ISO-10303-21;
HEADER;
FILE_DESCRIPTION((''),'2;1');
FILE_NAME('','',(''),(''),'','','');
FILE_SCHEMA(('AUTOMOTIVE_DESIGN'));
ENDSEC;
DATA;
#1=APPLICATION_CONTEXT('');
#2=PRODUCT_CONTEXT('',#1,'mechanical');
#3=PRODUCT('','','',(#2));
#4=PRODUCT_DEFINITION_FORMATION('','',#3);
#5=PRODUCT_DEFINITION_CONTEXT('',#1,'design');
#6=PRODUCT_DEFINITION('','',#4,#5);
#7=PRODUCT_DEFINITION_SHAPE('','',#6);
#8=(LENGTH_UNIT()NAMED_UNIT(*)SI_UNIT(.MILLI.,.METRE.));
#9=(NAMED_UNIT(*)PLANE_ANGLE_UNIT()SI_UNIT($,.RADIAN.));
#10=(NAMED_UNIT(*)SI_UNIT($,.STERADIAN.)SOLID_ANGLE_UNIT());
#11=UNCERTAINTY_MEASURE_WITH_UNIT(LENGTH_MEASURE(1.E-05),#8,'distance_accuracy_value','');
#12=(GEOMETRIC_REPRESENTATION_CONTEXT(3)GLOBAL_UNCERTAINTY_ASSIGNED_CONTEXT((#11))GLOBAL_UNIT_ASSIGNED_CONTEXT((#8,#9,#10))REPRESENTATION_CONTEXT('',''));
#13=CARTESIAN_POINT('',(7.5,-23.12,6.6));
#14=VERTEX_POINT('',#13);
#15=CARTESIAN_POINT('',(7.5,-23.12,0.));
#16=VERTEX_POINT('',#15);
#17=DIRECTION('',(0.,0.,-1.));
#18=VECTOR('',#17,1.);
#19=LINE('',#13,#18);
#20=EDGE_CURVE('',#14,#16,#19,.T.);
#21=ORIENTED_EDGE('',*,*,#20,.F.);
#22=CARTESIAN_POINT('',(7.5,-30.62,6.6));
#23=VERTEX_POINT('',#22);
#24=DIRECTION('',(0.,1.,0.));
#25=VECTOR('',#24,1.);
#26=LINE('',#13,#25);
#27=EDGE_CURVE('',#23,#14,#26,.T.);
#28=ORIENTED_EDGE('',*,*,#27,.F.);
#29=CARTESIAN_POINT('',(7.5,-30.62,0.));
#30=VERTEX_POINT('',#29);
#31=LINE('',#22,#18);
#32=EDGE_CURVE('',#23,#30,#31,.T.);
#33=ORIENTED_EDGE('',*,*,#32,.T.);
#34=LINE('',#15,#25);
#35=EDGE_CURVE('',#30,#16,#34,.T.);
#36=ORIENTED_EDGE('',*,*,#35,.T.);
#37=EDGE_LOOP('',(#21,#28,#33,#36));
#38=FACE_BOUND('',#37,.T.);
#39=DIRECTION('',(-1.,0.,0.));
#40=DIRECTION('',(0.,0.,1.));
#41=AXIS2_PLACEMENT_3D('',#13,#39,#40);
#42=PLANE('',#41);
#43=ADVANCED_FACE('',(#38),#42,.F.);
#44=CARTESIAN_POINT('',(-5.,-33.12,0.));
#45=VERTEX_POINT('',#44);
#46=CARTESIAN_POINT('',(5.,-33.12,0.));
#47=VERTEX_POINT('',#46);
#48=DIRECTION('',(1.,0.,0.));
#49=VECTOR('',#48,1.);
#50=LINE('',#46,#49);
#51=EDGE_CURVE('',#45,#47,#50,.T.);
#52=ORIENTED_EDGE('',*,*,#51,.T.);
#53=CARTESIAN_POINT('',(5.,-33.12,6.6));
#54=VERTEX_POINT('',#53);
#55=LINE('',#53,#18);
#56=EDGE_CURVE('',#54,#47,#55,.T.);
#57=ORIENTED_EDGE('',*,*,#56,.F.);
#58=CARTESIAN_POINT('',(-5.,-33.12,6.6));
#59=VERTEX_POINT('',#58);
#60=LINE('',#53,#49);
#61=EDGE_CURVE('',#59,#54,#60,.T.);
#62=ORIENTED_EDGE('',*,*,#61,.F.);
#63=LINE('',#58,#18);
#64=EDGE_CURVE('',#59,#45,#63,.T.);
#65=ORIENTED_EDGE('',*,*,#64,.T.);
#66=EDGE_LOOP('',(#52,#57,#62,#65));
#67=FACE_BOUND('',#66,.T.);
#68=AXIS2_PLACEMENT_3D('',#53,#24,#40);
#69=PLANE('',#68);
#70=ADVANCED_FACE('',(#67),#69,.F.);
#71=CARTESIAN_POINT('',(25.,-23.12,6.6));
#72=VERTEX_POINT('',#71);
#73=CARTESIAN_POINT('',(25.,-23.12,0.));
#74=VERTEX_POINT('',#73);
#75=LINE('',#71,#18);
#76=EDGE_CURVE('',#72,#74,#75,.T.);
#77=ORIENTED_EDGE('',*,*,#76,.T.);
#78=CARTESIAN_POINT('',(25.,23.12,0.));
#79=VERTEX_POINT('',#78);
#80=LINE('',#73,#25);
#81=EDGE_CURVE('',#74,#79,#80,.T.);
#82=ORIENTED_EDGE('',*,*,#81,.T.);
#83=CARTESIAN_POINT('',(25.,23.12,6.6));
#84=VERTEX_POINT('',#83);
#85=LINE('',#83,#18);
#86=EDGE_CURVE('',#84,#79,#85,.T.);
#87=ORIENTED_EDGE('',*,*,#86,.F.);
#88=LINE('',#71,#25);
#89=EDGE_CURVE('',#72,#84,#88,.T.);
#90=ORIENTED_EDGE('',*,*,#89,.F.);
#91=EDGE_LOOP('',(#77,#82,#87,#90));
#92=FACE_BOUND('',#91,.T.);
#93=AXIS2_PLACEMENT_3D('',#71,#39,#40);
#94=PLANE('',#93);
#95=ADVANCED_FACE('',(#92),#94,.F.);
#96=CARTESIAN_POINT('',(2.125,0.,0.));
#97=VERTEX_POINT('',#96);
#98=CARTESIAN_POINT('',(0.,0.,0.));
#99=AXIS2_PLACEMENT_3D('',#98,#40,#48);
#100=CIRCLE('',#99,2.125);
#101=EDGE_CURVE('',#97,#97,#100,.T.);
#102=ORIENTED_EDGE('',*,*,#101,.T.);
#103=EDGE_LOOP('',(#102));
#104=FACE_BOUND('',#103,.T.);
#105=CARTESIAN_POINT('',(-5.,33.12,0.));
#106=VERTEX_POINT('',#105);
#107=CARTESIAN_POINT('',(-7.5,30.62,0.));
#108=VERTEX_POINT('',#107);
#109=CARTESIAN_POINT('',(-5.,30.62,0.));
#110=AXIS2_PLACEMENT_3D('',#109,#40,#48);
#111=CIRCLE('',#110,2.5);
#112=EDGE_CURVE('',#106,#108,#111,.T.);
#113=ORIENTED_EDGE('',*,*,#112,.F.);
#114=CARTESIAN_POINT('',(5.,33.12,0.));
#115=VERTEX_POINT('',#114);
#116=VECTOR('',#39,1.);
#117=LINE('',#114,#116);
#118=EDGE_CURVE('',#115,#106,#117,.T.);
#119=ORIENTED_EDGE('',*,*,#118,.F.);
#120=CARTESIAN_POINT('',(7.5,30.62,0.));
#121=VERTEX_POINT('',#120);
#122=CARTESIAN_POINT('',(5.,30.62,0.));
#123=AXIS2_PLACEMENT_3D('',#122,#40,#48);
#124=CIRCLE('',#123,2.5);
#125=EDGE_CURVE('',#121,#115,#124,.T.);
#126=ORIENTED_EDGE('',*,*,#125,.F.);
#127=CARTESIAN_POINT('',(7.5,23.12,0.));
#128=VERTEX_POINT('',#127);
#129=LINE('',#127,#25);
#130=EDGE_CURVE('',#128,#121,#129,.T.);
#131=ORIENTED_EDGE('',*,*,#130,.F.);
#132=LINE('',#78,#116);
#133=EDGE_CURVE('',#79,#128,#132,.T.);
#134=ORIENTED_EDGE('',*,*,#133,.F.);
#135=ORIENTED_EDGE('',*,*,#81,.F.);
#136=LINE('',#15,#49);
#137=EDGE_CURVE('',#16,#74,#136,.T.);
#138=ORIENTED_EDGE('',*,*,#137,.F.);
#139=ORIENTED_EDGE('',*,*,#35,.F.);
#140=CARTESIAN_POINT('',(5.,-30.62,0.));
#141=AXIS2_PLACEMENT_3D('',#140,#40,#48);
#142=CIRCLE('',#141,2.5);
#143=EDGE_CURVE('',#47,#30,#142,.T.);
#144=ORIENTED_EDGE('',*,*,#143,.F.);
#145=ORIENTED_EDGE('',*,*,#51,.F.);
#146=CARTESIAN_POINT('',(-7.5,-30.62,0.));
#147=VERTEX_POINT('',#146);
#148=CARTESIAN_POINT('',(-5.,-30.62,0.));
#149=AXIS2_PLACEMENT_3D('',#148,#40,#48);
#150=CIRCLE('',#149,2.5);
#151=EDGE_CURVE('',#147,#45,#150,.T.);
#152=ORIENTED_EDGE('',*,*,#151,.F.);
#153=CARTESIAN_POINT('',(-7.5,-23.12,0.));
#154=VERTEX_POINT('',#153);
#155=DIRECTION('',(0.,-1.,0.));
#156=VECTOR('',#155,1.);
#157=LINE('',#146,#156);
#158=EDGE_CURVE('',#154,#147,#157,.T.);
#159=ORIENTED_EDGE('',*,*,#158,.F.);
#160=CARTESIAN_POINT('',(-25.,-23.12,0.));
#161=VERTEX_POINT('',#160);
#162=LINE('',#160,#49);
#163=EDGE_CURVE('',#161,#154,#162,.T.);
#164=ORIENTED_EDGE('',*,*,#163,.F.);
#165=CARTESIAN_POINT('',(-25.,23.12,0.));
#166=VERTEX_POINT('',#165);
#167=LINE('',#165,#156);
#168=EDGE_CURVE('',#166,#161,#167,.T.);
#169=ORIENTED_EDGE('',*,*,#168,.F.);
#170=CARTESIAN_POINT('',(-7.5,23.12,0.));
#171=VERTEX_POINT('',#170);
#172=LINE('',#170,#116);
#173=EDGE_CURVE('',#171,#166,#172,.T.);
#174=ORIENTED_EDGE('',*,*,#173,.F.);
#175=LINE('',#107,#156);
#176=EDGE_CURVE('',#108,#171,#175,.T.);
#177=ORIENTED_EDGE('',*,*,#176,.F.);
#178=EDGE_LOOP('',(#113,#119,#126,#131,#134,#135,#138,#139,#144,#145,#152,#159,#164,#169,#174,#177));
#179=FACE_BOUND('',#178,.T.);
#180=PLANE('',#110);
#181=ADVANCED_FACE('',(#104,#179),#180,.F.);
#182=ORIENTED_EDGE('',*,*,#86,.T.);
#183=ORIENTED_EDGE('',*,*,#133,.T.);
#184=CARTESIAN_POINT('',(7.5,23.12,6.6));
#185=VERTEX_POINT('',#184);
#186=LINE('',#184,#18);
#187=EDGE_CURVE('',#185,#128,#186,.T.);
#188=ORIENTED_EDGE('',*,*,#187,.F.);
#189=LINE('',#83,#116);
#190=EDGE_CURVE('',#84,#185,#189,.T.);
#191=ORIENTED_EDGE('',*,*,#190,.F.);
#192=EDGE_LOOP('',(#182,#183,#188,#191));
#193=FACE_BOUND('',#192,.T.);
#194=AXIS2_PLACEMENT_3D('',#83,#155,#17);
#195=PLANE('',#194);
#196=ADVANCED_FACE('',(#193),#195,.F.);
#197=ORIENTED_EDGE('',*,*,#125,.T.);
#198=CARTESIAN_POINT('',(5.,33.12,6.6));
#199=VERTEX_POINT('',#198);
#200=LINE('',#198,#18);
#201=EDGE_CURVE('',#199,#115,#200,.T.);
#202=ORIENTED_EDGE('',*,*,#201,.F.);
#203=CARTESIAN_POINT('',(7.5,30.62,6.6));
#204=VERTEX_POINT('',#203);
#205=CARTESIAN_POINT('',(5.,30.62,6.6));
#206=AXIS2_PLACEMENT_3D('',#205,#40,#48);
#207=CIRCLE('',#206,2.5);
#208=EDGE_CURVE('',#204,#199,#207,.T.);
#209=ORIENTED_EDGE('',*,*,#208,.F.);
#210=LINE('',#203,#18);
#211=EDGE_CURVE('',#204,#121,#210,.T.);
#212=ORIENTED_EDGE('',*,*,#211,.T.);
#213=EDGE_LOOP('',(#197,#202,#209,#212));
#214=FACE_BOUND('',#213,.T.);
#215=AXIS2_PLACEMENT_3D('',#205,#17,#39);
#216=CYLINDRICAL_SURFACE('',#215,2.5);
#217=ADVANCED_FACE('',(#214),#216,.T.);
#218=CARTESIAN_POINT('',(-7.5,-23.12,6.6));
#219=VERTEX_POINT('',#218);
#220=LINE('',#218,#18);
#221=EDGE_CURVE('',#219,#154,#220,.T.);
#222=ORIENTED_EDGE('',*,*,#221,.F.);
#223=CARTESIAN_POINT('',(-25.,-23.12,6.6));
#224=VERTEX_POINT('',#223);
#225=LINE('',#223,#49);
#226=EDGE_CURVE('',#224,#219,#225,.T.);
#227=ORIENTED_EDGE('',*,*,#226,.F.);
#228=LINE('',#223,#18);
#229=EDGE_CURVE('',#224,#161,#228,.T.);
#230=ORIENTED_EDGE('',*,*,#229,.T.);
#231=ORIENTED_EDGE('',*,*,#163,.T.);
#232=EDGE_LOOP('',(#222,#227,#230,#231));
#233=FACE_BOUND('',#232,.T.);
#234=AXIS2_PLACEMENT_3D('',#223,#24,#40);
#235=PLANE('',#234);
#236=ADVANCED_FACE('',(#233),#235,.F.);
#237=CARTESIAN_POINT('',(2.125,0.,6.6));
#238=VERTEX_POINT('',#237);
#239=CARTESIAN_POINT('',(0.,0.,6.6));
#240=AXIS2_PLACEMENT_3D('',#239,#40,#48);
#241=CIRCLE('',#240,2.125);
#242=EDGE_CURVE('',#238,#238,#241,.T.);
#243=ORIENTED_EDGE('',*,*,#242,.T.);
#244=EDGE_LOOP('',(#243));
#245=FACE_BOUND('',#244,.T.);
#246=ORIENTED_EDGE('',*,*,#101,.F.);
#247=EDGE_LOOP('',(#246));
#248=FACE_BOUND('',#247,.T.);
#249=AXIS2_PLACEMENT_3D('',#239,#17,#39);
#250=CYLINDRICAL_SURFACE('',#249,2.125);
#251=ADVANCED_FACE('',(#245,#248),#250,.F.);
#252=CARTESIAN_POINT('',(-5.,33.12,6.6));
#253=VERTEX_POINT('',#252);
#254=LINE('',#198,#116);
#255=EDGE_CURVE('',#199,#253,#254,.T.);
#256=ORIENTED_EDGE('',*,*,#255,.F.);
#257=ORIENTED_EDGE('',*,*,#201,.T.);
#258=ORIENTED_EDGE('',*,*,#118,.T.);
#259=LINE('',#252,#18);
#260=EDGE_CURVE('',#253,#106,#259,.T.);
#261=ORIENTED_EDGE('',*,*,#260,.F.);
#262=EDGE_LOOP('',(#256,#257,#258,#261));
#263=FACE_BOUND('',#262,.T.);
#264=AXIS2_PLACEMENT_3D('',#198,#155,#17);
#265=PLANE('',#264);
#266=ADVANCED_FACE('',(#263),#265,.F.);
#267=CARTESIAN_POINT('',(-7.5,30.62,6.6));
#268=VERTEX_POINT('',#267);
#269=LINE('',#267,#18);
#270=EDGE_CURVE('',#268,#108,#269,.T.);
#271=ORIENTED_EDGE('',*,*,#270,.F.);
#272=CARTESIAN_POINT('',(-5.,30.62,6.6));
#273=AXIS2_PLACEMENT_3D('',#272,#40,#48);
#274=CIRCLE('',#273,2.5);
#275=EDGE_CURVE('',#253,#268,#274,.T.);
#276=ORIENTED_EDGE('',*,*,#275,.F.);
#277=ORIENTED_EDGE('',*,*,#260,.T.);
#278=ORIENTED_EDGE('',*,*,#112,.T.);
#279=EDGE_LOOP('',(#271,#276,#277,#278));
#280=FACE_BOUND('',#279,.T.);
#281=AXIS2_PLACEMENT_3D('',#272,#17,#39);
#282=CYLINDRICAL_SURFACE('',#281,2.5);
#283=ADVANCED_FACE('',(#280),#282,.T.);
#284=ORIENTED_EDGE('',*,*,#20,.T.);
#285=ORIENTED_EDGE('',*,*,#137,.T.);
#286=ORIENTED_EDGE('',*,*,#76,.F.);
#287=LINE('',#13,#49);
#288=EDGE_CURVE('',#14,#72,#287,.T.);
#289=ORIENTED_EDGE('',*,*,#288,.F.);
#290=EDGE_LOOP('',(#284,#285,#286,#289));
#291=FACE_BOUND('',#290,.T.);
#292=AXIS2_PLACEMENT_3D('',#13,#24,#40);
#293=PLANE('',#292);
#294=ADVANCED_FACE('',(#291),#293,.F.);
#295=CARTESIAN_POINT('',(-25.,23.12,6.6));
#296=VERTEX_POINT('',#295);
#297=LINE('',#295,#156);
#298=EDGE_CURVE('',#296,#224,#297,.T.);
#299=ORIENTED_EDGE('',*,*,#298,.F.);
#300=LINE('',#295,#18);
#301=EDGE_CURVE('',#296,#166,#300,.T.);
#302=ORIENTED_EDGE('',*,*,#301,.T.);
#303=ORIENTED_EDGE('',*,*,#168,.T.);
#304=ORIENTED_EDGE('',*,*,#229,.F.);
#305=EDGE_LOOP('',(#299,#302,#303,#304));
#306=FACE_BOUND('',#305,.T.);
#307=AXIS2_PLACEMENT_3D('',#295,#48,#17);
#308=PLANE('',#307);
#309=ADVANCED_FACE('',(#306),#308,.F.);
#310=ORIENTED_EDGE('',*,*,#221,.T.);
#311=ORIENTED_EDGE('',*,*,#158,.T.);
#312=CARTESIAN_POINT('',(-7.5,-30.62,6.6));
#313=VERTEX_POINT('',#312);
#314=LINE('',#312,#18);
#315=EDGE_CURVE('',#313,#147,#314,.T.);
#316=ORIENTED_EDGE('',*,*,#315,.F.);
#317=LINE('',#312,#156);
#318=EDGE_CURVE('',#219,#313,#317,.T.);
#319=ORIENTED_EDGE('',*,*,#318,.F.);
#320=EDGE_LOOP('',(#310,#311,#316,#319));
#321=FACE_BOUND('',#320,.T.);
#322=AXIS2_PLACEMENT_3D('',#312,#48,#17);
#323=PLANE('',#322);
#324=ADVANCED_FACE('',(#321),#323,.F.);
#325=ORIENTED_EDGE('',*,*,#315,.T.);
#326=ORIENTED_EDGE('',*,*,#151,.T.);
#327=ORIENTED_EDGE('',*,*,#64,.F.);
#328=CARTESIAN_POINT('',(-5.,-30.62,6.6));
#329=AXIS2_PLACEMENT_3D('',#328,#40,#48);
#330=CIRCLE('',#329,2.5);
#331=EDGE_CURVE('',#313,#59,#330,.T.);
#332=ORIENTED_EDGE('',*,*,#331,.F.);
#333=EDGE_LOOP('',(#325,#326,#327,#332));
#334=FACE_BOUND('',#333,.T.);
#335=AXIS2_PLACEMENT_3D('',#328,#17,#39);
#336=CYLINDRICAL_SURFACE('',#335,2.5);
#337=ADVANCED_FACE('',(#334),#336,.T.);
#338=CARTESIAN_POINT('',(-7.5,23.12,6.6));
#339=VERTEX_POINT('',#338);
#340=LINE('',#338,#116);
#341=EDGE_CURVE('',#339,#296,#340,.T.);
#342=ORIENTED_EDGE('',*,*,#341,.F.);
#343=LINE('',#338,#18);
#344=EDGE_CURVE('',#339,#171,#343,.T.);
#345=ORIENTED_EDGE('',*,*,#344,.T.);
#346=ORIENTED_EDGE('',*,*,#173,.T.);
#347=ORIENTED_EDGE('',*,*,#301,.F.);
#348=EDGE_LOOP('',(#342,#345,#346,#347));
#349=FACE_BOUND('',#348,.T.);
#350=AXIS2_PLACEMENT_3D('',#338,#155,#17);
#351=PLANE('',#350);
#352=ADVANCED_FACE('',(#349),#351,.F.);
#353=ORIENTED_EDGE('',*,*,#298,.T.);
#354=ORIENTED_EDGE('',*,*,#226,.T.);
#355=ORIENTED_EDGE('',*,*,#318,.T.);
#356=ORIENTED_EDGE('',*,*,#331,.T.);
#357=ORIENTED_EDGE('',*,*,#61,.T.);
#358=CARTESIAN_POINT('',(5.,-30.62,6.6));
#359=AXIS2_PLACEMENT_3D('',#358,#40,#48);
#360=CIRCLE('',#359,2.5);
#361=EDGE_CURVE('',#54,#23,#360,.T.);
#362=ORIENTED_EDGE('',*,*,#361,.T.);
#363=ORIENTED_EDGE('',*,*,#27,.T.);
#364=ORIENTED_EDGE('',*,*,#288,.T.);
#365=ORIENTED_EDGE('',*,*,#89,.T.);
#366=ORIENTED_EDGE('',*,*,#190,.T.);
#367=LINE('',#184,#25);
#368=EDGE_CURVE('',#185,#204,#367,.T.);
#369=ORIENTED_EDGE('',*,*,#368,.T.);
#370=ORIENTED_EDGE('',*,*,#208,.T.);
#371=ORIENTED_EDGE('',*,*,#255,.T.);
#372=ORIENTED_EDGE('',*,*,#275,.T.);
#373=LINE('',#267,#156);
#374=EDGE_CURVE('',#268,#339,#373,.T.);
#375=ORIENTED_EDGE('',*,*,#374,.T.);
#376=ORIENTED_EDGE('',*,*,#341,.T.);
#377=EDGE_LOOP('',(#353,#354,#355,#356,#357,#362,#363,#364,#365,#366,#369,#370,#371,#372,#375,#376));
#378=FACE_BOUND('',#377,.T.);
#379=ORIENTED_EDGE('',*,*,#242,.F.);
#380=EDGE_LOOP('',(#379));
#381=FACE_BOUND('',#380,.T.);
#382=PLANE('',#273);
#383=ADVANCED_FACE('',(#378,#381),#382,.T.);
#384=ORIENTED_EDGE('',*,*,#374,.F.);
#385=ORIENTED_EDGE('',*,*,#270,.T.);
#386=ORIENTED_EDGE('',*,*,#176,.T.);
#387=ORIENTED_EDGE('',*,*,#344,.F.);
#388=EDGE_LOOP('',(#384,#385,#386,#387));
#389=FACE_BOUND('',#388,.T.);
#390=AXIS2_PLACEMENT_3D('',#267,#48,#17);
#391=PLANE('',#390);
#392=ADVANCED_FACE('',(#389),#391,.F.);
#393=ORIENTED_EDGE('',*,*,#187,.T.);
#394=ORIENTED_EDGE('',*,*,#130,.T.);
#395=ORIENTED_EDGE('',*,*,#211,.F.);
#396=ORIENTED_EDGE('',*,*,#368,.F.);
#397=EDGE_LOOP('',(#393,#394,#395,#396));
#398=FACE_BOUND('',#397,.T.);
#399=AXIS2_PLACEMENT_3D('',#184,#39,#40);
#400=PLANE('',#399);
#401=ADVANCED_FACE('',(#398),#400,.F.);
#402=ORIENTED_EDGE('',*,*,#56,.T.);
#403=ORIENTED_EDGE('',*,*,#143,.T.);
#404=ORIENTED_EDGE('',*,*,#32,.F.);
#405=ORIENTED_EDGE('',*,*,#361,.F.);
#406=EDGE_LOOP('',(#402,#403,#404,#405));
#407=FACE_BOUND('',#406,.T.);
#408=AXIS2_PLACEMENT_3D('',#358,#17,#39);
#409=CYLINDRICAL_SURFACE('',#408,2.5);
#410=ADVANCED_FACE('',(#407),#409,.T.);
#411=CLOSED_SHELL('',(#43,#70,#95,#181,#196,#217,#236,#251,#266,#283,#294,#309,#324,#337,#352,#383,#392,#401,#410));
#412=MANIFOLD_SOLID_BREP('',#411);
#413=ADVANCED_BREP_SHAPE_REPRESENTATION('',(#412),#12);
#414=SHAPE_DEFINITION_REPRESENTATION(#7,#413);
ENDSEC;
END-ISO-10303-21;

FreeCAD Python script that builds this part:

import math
import FreeCAD as App
import Part
import Sketcher
from FreeCAD import Vector

doc = App.newDocument("Part")
body = doc.addObject("PartDesign::Body", "Body")

sketch1 = body.newObject("Sketcher::SketchObject", "Sketch")
sketch1.AttachmentSupport = (doc.getObject("XY_Plane"), [""])
sketch1.MapMode = "FlatFace"
sketch1.addGeometry(Part.LineSegment(Vector(-25, 23.1, 0), Vector(-25, -23.1, 0)), False)
sketch1.addGeometry(Part.LineSegment(Vector(-25, -23.1, 0), Vector(-7.5, -23.1, 0)), False)
sketch1.addGeometry(Part.LineSegment(Vector(-7.5, -23.1, 0), Vector(-7.5, -30.6, 0)), False)
sketch1.addGeometry(Part.ArcOfCircle(Part.Circle(Vector(-5, -30.6, 0), Vector(0, 0, 1), 2.5), math.radians(180), math.radians(270)), False)
sketch1.addGeometry(Part.LineSegment(Vector(-5, -33.1, 0), Vector(5, -33.1, 0)), False)
sketch1.addGeometry(Part.ArcOfCircle(Part.Circle(Vector(5, -30.6, 0), Vector(0, 0, 1), 2.5), math.radians(-90), math.radians(0)), False)
sketch1.addGeometry(Part.LineSegment(Vector(7.5, -30.6, 0), Vector(7.5, -23.1, 0)), False)
sketch1.addGeometry(Part.LineSegment(Vector(7.5, -23.1, 0), Vector(25, -23.1, 0)), False)
sketch1.addGeometry(Part.LineSegment(Vector(25, -23.1, 0), Vector(25, 23.1, 0)), False)
sketch1.addGeometry(Part.LineSegment(Vector(25, 23.1, 0), Vector(7.5, 23.1, 0)), False)
sketch1.addGeometry(Part.LineSegment(Vector(7.5, 23.1, 0), Vector(7.5, 30.6, 0)), False)
sketch1.addGeometry(Part.ArcOfCircle(Part.Circle(Vector(5, 30.6, 0), Vector(0, 0, 1), 2.5), math.radians(0), math.radians(90)), False)
sketch1.addGeometry(Part.LineSegment(Vector(5, 33.1, 0), Vector(-5, 33.1, 0)), False)
sketch1.addGeometry(Part.ArcOfCircle(Part.Circle(Vector(-5, 30.6, 0), Vector(0, 0, 1), 2.5), math.radians(90), math.radians(180)), False)
sketch1.addGeometry(Part.LineSegment(Vector(-7.5, 30.6, 0), Vector(-7.5, 23.1, 0)), False)
sketch1.addGeometry(Part.LineSegment(Vector(-7.5, 23.1, 0), Vector(-25, 23.1, 0)), False)
sketch1.addGeometry(Part.Circle(Vector(0, 0, 0), Vector(0, 0, 1), 2.1), False)
sketch1.addConstraint(Sketcher.Constraint("Coincident", 0, 2, 1, 1))
sketch1.addConstraint(Sketcher.Constraint("Coincident", 1, 2, 2, 1))
sketch1.addConstraint(Sketcher.Constraint("Tangent", 2, 2, 3, 1))
sketch1.addConstraint(Sketcher.Constraint("Tangent", 3, 2, 4, 1))
sketch1.addConstraint(Sketcher.Constraint("Tangent", 4, 2, 5, 1))
sketch1.addConstraint(Sketcher.Constraint("Tangent", 5, 2, 6, 1))
sketch1.addConstraint(Sketcher.Constraint("Coincident", 6, 2, 7, 1))
sketch1.addConstraint(Sketcher.Constraint("Coincident", 7, 2, 8, 1))
sketch1.addConstraint(Sketcher.Constraint("Coincident", 8, 2, 9, 1))
sketch1.addConstraint(Sketcher.Constraint("Coincident", 9, 2, 10, 1))
sketch1.addConstraint(Sketcher.Constraint("Tangent", 10, 2, 11, 1))
sketch1.addConstraint(Sketcher.Constraint("Tangent", 11, 2, 12, 1))
sketch1.addConstraint(Sketcher.Constraint("Tangent", 12, 2, 13, 1))
sketch1.addConstraint(Sketcher.Constraint("Tangent", 13, 2, 14, 1))
sketch1.addConstraint(Sketcher.Constraint("Coincident", 14, 2, 15, 1))
sketch1.addConstraint(Sketcher.Constraint("Coincident", 15, 2, 0, 1))
sketch1.addConstraint(Sketcher.Constraint("Vertical", 0))
sketch1.addConstraint(Sketcher.Constraint("Horizontal", 1))
sketch1.addConstraint(Sketcher.Constraint("Vertical", 2))
sketch1.addConstraint(Sketcher.Constraint("Horizontal", 4))
sketch1.addConstraint(Sketcher.Constraint("Vertical", 6))
sketch1.addConstraint(Sketcher.Constraint("Horizontal", 7))
sketch1.addConstraint(Sketcher.Constraint("Vertical", 8))
sketch1.addConstraint(Sketcher.Constraint("Horizontal", 9))
sketch1.addConstraint(Sketcher.Constraint("Vertical", 10))
sketch1.addConstraint(Sketcher.Constraint("Horizontal", 12))
sketch1.addConstraint(Sketcher.Constraint("Vertical", 14))
sketch1.addConstraint(Sketcher.Constraint("Horizontal", 15))
sketch1.addConstraint(Sketcher.Constraint("Coincident", 16, 3, -1, 1))
sketch1.addConstraint(Sketcher.Constraint("Equal", 3, 5))
sketch1.addConstraint(Sketcher.Constraint("Equal", 5, 11))
sketch1.addConstraint(Sketcher.Constraint("Equal", 11, 13))
sketch1.addConstraint(Sketcher.Constraint("Symmetric", 3, 3, 11, 3, -1, 1))
sketch1.addConstraint(Sketcher.Constraint("Symmetric", 0, 2, 8, 2, -1, 1))
sketch1.addConstraint(Sketcher.Constraint("Symmetric", 6, 2, 14, 2, -1, 1))
sketch1.addConstraint(Sketcher.Constraint("Symmetric", 1, 2, 6, 2, -2))
sketch1.addConstraint(Sketcher.Constraint("Radius", 3, 2.5))
sketch1.addConstraint(Sketcher.Constraint("Diameter", 16, 4.25))
sketch1.addConstraint(Sketcher.Constraint("DistanceX", 4, 1, 4, 2, 10.0))
sketch1.addConstraint(Sketcher.Constraint("DistanceX", 1, 1, 1, 2, 17.5))
sketch1.addConstraint(Sketcher.Constraint("DistanceY", 2, 2, 2, 1, 7.5))
sketch1.addConstraint(Sketcher.Constraint("DistanceY", 0, 2, 0, 1, 46.24))
pad1 = body.newObject("PartDesign::Pad", "Pad")
pad1.Profile = sketch1
pad1.Length = 6.6

doc.recompute()
